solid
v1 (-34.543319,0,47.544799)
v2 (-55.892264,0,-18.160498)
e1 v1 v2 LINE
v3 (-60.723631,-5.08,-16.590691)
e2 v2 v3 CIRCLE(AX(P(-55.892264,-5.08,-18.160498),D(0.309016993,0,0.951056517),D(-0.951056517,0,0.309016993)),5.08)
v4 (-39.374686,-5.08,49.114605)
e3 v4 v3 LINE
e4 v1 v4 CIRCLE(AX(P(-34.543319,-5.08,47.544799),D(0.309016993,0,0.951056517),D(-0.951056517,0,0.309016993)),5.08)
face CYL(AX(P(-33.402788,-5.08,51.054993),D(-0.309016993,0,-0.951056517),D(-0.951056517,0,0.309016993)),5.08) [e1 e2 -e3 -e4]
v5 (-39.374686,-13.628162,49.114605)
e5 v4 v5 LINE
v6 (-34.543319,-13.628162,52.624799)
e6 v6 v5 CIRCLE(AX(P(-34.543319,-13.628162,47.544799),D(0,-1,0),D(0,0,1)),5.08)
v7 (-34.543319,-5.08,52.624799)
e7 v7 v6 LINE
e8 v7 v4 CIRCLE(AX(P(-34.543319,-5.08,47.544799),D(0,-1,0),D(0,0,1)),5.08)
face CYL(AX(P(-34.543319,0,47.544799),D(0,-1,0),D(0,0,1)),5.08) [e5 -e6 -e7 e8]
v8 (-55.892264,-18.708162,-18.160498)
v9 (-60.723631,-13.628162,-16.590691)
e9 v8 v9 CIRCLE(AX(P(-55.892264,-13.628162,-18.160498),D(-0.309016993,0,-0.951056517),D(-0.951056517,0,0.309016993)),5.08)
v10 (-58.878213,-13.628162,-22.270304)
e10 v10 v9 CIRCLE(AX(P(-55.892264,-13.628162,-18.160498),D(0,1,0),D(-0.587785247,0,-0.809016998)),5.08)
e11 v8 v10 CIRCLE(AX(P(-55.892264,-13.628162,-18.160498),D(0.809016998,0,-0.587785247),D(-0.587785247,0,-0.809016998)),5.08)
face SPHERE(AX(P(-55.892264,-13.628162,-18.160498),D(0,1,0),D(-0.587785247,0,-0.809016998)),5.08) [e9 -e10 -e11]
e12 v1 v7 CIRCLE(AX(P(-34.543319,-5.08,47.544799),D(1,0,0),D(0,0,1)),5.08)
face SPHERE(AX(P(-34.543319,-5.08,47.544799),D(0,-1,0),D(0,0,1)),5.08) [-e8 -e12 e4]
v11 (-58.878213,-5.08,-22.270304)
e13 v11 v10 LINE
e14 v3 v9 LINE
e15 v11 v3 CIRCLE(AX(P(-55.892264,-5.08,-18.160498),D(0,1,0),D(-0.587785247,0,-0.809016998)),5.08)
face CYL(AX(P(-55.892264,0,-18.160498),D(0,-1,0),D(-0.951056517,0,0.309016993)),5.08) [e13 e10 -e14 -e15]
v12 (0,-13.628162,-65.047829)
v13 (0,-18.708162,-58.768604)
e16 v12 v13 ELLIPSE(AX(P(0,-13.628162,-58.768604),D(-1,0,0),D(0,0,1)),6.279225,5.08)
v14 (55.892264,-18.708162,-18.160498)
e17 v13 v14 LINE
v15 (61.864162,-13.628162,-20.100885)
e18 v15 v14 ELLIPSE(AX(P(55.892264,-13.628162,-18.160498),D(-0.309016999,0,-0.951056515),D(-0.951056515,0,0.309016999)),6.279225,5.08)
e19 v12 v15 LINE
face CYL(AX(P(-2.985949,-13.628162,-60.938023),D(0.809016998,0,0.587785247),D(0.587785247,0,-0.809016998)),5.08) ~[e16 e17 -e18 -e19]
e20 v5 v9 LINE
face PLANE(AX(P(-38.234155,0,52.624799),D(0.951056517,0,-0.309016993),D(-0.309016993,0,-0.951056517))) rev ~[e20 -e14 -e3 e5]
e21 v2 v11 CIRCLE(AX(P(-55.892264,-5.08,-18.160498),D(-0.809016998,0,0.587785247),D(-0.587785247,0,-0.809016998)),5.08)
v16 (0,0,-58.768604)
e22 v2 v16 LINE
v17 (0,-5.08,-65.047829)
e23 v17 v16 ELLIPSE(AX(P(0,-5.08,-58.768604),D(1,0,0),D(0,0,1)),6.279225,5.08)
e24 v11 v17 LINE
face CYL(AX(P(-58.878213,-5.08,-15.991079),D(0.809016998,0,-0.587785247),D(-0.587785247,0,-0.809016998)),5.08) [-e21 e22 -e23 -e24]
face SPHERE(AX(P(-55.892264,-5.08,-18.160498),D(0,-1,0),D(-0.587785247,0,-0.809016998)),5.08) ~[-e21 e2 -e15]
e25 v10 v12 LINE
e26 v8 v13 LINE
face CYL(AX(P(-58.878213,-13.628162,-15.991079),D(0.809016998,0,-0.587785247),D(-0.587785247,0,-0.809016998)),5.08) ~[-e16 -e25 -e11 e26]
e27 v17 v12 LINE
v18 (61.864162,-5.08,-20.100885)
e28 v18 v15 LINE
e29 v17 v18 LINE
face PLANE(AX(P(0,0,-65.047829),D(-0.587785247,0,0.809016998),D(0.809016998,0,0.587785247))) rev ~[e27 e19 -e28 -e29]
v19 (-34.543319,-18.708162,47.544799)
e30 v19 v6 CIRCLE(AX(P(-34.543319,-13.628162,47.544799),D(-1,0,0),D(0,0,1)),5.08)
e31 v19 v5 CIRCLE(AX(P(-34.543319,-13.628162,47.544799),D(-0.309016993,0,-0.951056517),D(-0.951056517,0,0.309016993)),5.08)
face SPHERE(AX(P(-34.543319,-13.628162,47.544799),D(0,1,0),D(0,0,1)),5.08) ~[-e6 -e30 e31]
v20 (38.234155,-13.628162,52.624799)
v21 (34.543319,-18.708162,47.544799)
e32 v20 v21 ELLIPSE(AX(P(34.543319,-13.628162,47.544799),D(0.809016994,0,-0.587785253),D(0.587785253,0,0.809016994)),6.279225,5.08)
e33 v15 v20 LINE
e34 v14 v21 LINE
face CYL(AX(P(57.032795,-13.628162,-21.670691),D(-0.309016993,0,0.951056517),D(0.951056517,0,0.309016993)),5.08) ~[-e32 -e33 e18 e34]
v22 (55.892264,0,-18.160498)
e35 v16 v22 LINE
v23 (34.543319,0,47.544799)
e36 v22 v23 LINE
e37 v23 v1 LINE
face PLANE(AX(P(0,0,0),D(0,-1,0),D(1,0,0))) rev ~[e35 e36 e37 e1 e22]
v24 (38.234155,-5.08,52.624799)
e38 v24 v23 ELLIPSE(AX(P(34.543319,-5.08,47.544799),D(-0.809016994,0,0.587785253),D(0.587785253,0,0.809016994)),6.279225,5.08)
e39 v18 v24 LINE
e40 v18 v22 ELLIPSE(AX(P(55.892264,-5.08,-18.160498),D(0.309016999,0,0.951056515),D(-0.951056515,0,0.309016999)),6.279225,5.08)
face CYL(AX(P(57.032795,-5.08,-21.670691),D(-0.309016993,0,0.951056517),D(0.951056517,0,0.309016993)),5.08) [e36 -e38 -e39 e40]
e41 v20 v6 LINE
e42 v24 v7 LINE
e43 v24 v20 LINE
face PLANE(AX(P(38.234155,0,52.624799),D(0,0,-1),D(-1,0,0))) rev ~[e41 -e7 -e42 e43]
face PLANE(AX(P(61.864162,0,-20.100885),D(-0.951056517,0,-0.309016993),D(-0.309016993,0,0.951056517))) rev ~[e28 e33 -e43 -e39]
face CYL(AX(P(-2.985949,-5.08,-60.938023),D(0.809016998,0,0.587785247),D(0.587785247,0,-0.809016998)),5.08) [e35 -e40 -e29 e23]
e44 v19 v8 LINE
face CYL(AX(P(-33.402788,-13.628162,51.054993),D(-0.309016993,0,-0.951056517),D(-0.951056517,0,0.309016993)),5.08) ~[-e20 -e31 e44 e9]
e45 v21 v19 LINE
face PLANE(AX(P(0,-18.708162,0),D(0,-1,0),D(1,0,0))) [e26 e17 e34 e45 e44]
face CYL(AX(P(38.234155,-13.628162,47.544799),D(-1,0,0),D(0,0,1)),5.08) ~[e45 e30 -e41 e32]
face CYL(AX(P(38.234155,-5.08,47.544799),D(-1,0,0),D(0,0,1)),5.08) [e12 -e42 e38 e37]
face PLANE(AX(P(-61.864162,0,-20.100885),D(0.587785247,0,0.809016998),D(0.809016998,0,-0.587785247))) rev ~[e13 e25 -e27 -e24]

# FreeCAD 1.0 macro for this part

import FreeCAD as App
import Part
import Sketcher

V = App.Vector
Q = App.Units.Quantity


def edges_at(feature, points):
    """Names of the edges that pass closest to the given points."""
    edges = feature.Shape.Edges
    near = lambda p: min(range(len(edges)), key=lambda i: edges[i].distToShape(Part.Vertex(*p))[0])
    return sorted({f"Edge{near(p) + 1}" for p in points})


def add_polygon(sketch, points):
    """Adds a closed chain of lines whose ends are joined by coincident constraints."""
    first, n = sketch.GeometryCount, len(points)
    for a, b in zip(points, points[1:] + points[:1]):
        sketch.addGeometry(Part.LineSegment(App.Vector(*a, 0), App.Vector(*b, 0)), False)
    for i in range(n):
        sketch.addConstraint(Sketcher.Constraint("Coincident", first + i, 2, first + (i + 1) % n, 1))

doc = App.newDocument("Part")
body = doc.addObject("PartDesign::Body", "Body")

sketch1 = doc.addObject("Sketcher::SketchObject", "Sketch")
body.addObject(sketch1)
sketch1.AttachmentSupport = (doc.XZ_Plane, [""])
sketch1.MapMode = "FlatFace"
add_polygon(sketch1, [(38, 53), (-38, 53), (-62, -20), (0, -65), (62, -20)])
sketch1.addConstraint(Sketcher.Constraint("Horizontal", 0))
sketch1.addConstraint(Sketcher.Constraint("Symmetric", 1, 2, 3, 2, -2))
sketch1.addConstraint(Sketcher.Constraint("PointOnObject", 2, 2, -2))
sketch1.addConstraint(Sketcher.Constraint("Equal", 1, 2))
sketch1.addConstraint(Sketcher.Constraint("Equal", 3, 4))
sketch1.addConstraint(Sketcher.Constraint("Angle", 1, Q("-108 deg")))
sketch1.addConstraint(Sketcher.Constraint("Angle", 2, Q("-36 deg")))
sketch1.addConstraint(Sketcher.Constraint("DistanceX", 0, 2, 0, 1, 76.46831))
sketch1.addConstraint(Sketcher.Constraint("DistanceY", -1, 1, 0, 2, 52.624799))
pad1 = doc.addObject("PartDesign::Pad", "Pad")
body.addObject(pad1)
pad1.Profile = sketch1
pad1.Length = 18.708162
doc.recompute()

fillet = doc.addObject("PartDesign::Fillet", "Fillet")
body.addObject(fillet)
fillet.Base = (pad1, edges_at(pad1, [
    (50.049, -18.708, 16.262),
    (50.049, 0, 16.262),
    (30.932, -18.708, -42.574),
    (30.932, 0, -42.574),
    (-30.932, 0, -42.574),
    (-30.932, -18.708, -42.574),
    (0, 0, 52.625),
    (-50.049, 0, 16.262),
    (0, -18.708, 52.625),
    (-50.049, -18.708, 16.262),
    (-38.234, -9.354, 52.625),
    (-61.864, -9.354, -20.101),
]))
fillet.Radius = Q("0.2 in")

doc.recompute()
